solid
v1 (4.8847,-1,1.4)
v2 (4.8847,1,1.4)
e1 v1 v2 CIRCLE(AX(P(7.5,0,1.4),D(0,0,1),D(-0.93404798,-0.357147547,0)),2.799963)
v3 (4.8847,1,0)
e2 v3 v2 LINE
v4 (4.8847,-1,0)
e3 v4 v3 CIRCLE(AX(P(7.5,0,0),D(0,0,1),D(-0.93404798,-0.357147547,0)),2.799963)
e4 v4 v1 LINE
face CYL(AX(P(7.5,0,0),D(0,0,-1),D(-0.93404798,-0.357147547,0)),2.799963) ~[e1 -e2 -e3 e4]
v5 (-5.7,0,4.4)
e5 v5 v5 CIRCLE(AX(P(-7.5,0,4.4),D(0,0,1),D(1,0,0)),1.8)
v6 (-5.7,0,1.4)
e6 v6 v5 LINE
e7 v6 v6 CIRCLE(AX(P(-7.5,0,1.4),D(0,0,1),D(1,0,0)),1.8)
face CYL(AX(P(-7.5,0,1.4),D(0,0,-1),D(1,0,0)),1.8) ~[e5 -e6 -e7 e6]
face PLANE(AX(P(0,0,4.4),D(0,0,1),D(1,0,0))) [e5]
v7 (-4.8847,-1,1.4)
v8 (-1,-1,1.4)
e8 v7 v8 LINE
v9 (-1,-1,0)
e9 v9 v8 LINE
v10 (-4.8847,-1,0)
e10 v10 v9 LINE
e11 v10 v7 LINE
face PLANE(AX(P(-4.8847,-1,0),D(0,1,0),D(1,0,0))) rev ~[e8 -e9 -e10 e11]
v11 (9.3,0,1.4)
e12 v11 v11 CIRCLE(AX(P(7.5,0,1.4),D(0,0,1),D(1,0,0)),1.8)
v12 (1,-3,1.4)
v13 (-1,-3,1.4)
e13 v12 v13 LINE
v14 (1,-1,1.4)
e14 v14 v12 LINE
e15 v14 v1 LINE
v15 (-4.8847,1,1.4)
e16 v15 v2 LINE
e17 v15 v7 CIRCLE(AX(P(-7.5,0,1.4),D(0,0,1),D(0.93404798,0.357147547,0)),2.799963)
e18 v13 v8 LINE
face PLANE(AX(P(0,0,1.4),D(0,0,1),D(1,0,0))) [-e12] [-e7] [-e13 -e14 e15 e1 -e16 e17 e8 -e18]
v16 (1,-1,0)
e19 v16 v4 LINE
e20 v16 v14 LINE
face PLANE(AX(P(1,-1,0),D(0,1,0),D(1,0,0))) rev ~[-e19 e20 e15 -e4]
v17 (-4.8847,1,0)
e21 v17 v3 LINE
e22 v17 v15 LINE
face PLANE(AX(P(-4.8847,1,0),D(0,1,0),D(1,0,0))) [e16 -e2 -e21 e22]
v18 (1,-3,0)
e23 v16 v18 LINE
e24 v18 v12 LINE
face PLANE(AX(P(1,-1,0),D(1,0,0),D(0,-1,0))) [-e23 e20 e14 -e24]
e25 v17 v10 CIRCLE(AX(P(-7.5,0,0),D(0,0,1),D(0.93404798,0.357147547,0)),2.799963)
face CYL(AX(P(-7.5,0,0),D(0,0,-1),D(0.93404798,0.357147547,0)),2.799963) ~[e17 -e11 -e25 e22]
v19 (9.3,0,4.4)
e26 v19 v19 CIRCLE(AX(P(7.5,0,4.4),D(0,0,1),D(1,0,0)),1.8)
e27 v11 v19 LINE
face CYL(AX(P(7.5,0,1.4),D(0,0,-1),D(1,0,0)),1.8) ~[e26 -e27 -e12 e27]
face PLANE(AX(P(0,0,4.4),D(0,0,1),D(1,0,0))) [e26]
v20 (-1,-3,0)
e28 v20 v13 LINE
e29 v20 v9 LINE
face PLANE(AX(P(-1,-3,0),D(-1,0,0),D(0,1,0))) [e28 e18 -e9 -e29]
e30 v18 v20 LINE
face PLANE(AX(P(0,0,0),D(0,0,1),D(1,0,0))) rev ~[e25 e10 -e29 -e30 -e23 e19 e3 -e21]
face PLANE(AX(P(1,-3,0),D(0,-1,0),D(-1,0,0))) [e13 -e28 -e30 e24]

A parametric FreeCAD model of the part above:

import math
import FreeCAD as App
import Part
import Sketcher

V = App.Vector
Q = App.Units.Quantity

doc = App.newDocument("Part")
body = doc.addObject("PartDesign::Body", "Body")

# Sketch on XY plane
sketch1 = body.newObject("Sketcher::SketchObject", "Sketch")
sketch1.AttachmentSupport = (doc.getObject("XY_Plane"), [""])
sketch1.MapMode = "FlatFace"
sketch1.addGeometry([
    Part.LineSegment(V(4.9, 1, 0), V(-4.9, 1, 0)),  # 0
    Part.ArcOfCircle(Part.Circle(V(-7.5, 0, 0), V(0, 0, 1), 2.8), math.radians(21), math.radians(339)),  # 1
    Part.LineSegment(V(-4.9, -1, 0), V(-1, -1, 0)),  # 2
    Part.LineSegment(V(-1, -1, 0), V(-1, -3, 0)),  # 3
    Part.LineSegment(V(-1, -3, 0), V(1, -3, 0)),  # 4
    Part.LineSegment(V(1, -3, 0), V(1, -1, 0)),  # 5
    Part.LineSegment(V(1, -1, 0), V(4.9, -1, 0)),  # 6
    Part.ArcOfCircle(Part.Circle(V(7.5, 0, 0), V(0, 0, 1), 2.8), math.radians(-159), math.radians(159)),  # 7
], False)
sketch1.addConstraint([
    Sketcher.Constraint("Coincident", 0, 2, 1, 1),
    Sketcher.Constraint("Coincident", 1, 2, 2, 1),
    Sketcher.Constraint("Coincident", 2, 2, 3, 1),
    Sketcher.Constraint("Coincident", 3, 2, 4, 1),
    Sketcher.Constraint("Coincident", 4, 2, 5, 1),
    Sketcher.Constraint("Coincident", 5, 2, 6, 1),
    Sketcher.Constraint("Coincident", 6, 2, 7, 1),
    Sketcher.Constraint("Coincident", 7, 2, 0, 1),
    Sketcher.Constraint("Horizontal", 0),
    Sketcher.Constraint("Horizontal", 2),
    Sketcher.Constraint("Vertical", 3),
    Sketcher.Constraint("Horizontal", 4),
    Sketcher.Constraint("Vertical", 5),
    Sketcher.Constraint("Horizontal", 6),
    Sketcher.Constraint("Equal", 1, 7),
    Sketcher.Constraint("Symmetric", 1, 3, 7, 3, -1, 1),
    Sketcher.Constraint("Symmetric", 2, 2, 5, 2, -2),
    Sketcher.Constraint("Symmetric", 0, 2, 1, 2, -1),
    Sketcher.Constraint("Equal", 4, 3),
    Sketcher.Constraint("Radius", 1, Q("2.8 mm")),
    Sketcher.Constraint("DistanceX", 4, 1, 4, 2, Q("2 mm")),
    Sketcher.Constraint("DistanceY", -1, 1, 0, 2, Q("1 mm")),
    Sketcher.Constraint("DistanceX", 1, 3, 7, 3, Q("15 mm")),
])
pad1 = body.newObject("PartDesign::Pad", "Pad")
pad1.Profile = sketch1
pad1.Length = 1.4

# Sketch on XY plane
sketch2 = body.newObject("Sketcher::SketchObject", "Sketch001")
sketch2.AttachmentSupport = (doc.getObject("XY_Plane"), [""])
sketch2.MapMode = "FlatFace"
sketch2.AttachmentOffset = App.Placement(V(0, 0, 1.4), App.Rotation())
sketch2.addGeometry([
    Part.Circle(V(-7.5, 0, 0), V(0, 0, 1), 1.8),
    Part.Circle(V(7.5, 0, 0), V(0, 0, 1), 1.8),
], False)
sketch2.addConstraint([
    Sketcher.Constraint("Equal", 0, 1),
    Sketcher.Constraint("Symmetric", 0, 3, 1, 3, -1, 1),
    Sketcher.Constraint("PointOnObject", 0, 3, -1),
    Sketcher.Constraint("Diameter", 0, Q("3.6 mm")),
    Sketcher.Constraint("DistanceX", 0, 3, 1, 3, Q("15 mm")),
])
pad2 = body.newObject("PartDesign::Pad", "Pad001")
pad2.Profile = sketch2
pad2.Length = 3

doc.recompute()
